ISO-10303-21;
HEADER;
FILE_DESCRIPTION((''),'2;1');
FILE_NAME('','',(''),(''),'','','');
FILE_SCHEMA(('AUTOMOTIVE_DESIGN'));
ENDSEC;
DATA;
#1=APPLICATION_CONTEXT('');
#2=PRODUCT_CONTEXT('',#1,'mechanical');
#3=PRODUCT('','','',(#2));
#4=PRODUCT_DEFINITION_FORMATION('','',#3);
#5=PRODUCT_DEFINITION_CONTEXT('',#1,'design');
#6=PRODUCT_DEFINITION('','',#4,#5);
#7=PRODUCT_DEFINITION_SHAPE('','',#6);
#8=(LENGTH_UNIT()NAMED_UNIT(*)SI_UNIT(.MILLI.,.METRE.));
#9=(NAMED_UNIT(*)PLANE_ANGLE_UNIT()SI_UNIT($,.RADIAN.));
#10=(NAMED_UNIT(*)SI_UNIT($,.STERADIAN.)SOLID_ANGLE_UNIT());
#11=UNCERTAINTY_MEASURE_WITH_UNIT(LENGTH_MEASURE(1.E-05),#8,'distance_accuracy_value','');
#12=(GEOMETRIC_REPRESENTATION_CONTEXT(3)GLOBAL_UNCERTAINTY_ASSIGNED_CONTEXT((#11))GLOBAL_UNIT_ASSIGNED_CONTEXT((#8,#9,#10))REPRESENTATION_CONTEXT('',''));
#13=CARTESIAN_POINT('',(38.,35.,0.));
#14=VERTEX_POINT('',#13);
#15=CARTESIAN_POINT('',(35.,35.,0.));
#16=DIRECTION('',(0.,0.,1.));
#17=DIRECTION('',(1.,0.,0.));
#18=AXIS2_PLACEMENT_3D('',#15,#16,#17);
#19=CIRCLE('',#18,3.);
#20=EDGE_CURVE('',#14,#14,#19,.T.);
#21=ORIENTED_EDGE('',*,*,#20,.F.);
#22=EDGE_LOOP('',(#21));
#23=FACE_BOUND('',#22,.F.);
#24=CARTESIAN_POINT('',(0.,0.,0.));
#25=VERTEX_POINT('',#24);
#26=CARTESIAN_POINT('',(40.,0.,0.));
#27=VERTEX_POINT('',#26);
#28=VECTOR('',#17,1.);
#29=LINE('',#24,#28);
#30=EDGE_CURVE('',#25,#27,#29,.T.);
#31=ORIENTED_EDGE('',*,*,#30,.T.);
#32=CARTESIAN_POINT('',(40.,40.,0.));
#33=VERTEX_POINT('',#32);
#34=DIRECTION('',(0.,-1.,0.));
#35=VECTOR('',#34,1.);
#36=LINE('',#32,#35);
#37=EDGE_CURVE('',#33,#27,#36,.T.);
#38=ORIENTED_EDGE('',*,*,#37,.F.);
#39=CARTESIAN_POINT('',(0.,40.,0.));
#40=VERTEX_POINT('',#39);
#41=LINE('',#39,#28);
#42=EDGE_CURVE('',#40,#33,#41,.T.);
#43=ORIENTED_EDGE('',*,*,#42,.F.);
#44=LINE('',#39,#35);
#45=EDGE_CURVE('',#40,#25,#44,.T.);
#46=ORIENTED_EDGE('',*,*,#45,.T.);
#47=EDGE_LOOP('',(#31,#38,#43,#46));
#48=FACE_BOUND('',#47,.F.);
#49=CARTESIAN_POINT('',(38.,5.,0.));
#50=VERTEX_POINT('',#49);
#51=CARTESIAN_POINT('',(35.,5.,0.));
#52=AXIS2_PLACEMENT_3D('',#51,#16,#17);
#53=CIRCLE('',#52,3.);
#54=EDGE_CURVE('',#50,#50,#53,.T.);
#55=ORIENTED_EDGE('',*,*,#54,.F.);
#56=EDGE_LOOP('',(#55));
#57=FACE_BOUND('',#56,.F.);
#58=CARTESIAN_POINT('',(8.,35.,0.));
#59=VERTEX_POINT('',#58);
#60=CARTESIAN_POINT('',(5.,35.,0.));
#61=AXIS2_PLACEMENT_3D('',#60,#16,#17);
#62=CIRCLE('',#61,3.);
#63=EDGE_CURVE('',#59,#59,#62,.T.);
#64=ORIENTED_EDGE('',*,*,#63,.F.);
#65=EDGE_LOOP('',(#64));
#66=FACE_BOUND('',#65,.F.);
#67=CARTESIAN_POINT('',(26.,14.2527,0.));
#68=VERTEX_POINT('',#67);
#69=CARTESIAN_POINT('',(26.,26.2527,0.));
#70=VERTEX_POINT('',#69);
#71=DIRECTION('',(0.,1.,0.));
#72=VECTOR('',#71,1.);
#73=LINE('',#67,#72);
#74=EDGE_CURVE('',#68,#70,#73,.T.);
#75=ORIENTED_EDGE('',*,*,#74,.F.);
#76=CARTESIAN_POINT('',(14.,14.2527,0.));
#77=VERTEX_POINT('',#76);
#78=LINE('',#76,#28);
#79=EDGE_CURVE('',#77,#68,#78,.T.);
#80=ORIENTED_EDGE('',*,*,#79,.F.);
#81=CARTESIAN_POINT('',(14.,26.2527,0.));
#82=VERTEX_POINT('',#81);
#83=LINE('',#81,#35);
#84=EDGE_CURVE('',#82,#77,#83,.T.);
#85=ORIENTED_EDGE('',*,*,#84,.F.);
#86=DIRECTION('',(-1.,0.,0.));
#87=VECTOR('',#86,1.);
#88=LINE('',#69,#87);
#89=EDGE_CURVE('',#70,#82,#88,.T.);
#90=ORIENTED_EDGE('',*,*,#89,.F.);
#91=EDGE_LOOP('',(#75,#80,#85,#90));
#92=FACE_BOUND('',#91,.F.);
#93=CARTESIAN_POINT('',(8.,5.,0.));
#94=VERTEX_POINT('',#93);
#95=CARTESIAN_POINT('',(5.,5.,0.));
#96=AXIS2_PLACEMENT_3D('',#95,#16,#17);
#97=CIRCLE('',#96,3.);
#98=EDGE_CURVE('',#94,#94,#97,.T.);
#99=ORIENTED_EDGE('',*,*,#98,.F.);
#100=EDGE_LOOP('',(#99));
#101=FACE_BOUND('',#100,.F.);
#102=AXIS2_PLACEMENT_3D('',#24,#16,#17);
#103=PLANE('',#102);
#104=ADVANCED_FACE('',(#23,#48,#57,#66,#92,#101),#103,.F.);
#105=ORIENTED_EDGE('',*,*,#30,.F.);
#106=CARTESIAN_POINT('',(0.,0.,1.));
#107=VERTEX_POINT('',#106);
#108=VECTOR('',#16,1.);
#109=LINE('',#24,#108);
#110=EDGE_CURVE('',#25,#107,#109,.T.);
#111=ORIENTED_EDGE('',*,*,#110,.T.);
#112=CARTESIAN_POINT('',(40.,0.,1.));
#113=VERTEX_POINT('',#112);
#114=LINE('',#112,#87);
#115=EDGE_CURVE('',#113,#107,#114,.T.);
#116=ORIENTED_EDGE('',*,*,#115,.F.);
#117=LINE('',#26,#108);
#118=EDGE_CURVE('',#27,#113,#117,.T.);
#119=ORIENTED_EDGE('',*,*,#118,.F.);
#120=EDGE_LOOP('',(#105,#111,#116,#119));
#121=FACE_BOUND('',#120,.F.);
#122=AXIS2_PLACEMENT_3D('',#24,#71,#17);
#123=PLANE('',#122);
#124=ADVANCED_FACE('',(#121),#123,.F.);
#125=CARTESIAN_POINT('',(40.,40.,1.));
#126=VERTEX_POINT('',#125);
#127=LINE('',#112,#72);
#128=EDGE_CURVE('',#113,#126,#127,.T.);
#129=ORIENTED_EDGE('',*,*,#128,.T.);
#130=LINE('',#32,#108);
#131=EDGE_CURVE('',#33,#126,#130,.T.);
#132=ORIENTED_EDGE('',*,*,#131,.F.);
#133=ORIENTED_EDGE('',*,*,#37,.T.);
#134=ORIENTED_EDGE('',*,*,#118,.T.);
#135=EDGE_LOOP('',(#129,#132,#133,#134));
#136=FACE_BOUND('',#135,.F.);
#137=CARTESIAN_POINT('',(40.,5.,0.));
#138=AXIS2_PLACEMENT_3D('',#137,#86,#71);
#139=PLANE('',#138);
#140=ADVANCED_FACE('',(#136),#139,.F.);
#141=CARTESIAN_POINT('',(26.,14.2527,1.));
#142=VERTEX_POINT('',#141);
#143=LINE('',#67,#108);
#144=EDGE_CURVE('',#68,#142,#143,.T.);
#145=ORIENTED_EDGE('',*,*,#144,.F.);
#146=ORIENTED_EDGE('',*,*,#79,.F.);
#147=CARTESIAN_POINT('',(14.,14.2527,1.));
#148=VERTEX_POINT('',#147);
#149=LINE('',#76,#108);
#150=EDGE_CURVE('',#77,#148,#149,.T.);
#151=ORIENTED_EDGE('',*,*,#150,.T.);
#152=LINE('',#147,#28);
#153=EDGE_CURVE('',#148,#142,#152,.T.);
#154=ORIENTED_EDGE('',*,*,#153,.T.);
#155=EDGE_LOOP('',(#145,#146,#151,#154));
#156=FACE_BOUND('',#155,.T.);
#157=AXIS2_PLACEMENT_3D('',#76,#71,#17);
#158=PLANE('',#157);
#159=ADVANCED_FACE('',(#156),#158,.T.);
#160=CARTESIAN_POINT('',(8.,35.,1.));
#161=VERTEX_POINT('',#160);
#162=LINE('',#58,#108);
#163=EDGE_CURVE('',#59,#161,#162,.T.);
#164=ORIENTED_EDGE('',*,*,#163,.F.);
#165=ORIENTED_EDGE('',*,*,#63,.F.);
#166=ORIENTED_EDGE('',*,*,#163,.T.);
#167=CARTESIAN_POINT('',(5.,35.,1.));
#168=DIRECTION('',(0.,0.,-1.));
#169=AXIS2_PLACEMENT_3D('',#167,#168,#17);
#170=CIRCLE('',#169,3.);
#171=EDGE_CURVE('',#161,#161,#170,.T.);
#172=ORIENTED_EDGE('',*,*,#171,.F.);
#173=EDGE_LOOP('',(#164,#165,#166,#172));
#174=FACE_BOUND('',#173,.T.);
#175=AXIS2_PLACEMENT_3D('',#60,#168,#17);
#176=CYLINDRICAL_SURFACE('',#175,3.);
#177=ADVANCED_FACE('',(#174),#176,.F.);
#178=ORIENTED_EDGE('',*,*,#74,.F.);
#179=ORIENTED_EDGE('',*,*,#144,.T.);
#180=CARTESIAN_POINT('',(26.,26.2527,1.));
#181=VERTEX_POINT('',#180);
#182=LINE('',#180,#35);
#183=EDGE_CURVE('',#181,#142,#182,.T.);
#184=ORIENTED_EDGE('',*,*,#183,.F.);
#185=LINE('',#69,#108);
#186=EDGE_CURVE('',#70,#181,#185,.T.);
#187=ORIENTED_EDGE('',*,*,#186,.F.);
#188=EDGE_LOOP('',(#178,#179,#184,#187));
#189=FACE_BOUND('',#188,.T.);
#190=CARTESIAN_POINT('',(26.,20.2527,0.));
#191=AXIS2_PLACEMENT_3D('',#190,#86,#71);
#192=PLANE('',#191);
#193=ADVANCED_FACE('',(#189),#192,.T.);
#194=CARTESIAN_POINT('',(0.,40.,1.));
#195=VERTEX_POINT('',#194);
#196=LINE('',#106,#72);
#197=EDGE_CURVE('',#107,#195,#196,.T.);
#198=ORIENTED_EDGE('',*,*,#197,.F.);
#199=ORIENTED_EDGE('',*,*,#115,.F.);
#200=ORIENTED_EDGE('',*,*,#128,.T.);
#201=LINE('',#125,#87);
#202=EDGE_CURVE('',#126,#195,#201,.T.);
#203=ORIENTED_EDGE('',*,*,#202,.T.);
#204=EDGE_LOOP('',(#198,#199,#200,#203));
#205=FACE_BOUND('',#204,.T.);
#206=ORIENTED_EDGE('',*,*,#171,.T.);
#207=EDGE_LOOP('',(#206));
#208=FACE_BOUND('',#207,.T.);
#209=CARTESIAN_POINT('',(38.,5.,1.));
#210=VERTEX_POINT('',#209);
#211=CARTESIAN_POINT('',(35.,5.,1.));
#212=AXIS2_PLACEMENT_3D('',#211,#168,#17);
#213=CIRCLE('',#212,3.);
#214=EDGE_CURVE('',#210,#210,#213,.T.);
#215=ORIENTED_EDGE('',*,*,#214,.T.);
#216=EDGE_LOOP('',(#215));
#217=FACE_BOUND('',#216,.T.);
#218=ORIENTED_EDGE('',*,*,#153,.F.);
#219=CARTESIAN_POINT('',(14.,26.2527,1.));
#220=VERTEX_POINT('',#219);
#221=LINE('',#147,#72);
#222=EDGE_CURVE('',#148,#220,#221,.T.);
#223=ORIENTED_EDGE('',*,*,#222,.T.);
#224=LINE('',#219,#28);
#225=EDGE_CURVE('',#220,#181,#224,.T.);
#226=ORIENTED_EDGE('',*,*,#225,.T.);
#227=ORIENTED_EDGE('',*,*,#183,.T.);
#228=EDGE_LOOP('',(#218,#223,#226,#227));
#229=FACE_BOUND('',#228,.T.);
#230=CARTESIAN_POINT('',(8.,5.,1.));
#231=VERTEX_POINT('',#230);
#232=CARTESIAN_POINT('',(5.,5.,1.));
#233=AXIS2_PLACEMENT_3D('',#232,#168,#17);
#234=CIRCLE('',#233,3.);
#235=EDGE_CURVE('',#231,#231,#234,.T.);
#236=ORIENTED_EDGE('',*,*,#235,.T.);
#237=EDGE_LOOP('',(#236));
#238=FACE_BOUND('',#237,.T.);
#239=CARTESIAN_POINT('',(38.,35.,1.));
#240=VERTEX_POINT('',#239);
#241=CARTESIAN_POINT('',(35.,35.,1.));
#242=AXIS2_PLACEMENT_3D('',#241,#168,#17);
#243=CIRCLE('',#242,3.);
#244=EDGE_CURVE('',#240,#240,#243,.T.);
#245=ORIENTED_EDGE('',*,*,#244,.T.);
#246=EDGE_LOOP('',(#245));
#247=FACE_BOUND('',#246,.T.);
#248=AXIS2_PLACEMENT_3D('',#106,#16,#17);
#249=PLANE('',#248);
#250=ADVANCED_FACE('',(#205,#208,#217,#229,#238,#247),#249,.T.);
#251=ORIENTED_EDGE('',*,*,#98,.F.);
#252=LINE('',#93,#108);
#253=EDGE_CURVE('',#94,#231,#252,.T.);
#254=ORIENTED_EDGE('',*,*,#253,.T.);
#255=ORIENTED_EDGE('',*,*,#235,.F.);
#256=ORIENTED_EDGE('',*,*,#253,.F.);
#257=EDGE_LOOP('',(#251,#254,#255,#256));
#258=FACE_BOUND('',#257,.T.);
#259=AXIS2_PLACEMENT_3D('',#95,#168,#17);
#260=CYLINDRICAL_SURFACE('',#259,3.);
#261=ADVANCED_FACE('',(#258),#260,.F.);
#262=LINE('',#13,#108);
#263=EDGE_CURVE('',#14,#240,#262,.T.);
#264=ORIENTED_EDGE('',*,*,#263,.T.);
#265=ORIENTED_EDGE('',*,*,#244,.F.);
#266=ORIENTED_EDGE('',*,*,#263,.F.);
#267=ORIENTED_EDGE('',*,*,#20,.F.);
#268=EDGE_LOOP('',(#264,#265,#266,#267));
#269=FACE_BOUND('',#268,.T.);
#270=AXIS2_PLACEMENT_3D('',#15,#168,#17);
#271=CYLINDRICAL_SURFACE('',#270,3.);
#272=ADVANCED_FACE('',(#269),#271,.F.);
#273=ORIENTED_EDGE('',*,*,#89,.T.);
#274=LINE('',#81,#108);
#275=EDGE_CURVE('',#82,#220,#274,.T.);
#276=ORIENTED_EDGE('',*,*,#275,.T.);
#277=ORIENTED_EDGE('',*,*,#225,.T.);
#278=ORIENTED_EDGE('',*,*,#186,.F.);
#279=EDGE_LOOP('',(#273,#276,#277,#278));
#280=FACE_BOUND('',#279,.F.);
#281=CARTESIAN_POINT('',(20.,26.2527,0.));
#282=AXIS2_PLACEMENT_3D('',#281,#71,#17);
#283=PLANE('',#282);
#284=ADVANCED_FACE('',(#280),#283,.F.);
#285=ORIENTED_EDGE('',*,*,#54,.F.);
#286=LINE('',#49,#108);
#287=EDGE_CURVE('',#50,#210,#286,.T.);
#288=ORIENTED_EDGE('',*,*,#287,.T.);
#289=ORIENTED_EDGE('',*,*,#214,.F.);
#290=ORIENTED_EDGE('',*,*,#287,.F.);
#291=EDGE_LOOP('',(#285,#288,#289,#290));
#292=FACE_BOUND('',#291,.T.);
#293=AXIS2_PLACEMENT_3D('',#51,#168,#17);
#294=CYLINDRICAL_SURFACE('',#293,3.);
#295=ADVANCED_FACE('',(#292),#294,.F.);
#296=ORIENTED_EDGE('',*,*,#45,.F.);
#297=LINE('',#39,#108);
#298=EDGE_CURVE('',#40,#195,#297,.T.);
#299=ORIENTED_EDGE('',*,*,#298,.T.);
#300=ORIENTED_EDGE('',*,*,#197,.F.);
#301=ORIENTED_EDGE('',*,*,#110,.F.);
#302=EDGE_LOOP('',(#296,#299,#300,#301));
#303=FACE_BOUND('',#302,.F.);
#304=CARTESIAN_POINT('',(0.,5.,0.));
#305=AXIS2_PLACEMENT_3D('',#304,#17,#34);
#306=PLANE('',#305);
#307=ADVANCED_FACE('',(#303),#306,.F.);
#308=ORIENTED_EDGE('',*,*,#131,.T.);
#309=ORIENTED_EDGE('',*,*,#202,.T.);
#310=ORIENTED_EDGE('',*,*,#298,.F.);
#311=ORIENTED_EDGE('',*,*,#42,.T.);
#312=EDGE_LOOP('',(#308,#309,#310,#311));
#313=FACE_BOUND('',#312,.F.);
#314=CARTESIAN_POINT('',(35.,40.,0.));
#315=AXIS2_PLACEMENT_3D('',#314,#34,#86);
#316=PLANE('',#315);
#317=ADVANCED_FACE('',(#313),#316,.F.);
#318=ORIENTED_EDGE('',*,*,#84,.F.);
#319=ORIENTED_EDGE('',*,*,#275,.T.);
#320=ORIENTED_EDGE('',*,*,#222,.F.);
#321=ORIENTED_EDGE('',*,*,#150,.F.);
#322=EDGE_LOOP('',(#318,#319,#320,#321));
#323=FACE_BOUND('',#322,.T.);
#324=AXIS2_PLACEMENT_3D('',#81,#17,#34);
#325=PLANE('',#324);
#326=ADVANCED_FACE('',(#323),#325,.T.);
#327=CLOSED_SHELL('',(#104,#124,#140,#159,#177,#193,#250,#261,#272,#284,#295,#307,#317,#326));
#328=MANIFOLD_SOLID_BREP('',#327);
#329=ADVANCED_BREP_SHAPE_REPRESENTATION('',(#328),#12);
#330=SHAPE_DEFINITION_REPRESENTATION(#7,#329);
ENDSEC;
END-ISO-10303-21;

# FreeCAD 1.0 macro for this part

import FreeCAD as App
import Part
import Sketcher

V = App.Vector
Q = App.Units.Quantity


def add_polygon(sketch, points):
    """Adds a closed chain of lines whose ends are joined by coincident constraints."""
    first, n = sketch.GeometryCount, len(points)
    for a, b in zip(points, points[1:] + points[:1]):
        sketch.addGeometry(Part.LineSegment(App.Vector(*a, 0), App.Vector(*b, 0)), False)
    for i in range(n):
        sketch.addConstraint(Sketcher.Constraint("Coincident", first + i, 2, first + (i + 1) % n, 1))

doc = App.newDocument("Part")
params = doc.addObject("Spreadsheet::Sheet", "Params")
for row, (alias, value) in enumerate([
    ("sketch1_diameter", "6 mm"),
    ("sketch1_width", "40 mm"),
    ("sketch1_width2", "12 mm"),
    ("pad1_length", "1 mm"),
], start=1):
    params.set(f"A{row}", alias)
    params.set(f"B{row}", "=" + value)
    params.setAlias(f"B{row}", alias)

body = doc.addObject("PartDesign::Body", "Body")

# Sketch on XY plane
sketch1 = body.newObject("Sketcher::SketchObject", "Sketch")
sketch1.AttachmentSupport = (doc.getObject("XY_Plane"), [""])
sketch1.MapMode = "FlatFace"
add_polygon(sketch1, [(0, 0), (40, 0), (40, 40), (0, 40)])  # lines 0-3
sketch1.addGeometry(Part.Circle(V(5, 5, 0), V(0, 0, 1), 3), False)  # 4
add_polygon(sketch1, [(26, 14.3), (14, 14.3), (14, 26.3), (26, 26.3)])  # lines 5-8
sketch1.addGeometry(Part.Circle(V(5, 35, 0), V(0, 0, 1), 3), False)  # 9
sketch1.addGeometry(Part.Circle(V(35, 35, 0), V(0, 0, 1), 3), False)  # 10
sketch1.addGeometry(Part.Circle(V(35, 5, 0), V(0, 0, 1), 3), False)  # 11
sketch1.addConstraint([
    Sketcher.Constraint("Horizontal", 0),
    Sketcher.Constraint("Vertical", 1),
    Sketcher.Constraint("Horizontal", 2),
    Sketcher.Constraint("Vertical", 3),
    Sketcher.Constraint("Horizontal", 5),
    Sketcher.Constraint("Vertical", 6),
    Sketcher.Constraint("Horizontal", 7),
    Sketcher.Constraint("Vertical", 8),
    Sketcher.Constraint("Coincident", 3, 2, -1, 1),
    Sketcher.Constraint("Equal", 4, 9),
    Sketcher.Constraint("Equal", 9, 10),
    Sketcher.Constraint("Equal", 10, 11),
    Sketcher.Constraint("Horizontal", 9, 3, 10, 3),
    Sketcher.Constraint("Horizontal", 4, 3, 11, 3),
    Sketcher.Constraint("Vertical", 4, 3, 9, 3),
    Sketcher.Constraint("Vertical", 10, 3, 11, 3),
    Sketcher.Constraint("Equal", 2, 1),
    Sketcher.Constraint("Equal", 7, 6),
    Sketcher.Constraint("Diameter", 4, Q("6 mm")),
    Sketcher.Constraint("DistanceX", 0, 1, 0, 2, Q("40 mm")),
    Sketcher.Constraint("DistanceX", 5, 2, 5, 1, Q("12 mm")),
    Sketcher.Constraint("DistanceX", -1, 1, 4, 3, Q("5 mm")),
    Sketcher.Constraint("DistanceY", -1, 1, 4, 3, Q("5 mm")),
    Sketcher.Constraint("DistanceX", 11, 3, 0, 2, Q("5 mm")),
    Sketcher.Constraint("DistanceY", 10, 3, 1, 2, Q("5 mm")),
    Sketcher.Constraint("DistanceX", -1, 1, 5, 2, Q("14 mm")),
    Sketcher.Constraint("DistanceY", -1, 1, 5, 2, Q("14.2527 mm")),
])
sketch1.setExpression("Constraints[26]", "Params.sketch1_diameter")
sketch1.setExpression("Constraints[27]", "Params.sketch1_width")
sketch1.setExpression("Constraints[28]", "Params.sketch1_width2")
pad1 = body.newObject("PartDesign::Pad", "Pad")
pad1.Profile = sketch1
pad1.setExpression("Length", "Params.pad1_length")

doc.recompute()
